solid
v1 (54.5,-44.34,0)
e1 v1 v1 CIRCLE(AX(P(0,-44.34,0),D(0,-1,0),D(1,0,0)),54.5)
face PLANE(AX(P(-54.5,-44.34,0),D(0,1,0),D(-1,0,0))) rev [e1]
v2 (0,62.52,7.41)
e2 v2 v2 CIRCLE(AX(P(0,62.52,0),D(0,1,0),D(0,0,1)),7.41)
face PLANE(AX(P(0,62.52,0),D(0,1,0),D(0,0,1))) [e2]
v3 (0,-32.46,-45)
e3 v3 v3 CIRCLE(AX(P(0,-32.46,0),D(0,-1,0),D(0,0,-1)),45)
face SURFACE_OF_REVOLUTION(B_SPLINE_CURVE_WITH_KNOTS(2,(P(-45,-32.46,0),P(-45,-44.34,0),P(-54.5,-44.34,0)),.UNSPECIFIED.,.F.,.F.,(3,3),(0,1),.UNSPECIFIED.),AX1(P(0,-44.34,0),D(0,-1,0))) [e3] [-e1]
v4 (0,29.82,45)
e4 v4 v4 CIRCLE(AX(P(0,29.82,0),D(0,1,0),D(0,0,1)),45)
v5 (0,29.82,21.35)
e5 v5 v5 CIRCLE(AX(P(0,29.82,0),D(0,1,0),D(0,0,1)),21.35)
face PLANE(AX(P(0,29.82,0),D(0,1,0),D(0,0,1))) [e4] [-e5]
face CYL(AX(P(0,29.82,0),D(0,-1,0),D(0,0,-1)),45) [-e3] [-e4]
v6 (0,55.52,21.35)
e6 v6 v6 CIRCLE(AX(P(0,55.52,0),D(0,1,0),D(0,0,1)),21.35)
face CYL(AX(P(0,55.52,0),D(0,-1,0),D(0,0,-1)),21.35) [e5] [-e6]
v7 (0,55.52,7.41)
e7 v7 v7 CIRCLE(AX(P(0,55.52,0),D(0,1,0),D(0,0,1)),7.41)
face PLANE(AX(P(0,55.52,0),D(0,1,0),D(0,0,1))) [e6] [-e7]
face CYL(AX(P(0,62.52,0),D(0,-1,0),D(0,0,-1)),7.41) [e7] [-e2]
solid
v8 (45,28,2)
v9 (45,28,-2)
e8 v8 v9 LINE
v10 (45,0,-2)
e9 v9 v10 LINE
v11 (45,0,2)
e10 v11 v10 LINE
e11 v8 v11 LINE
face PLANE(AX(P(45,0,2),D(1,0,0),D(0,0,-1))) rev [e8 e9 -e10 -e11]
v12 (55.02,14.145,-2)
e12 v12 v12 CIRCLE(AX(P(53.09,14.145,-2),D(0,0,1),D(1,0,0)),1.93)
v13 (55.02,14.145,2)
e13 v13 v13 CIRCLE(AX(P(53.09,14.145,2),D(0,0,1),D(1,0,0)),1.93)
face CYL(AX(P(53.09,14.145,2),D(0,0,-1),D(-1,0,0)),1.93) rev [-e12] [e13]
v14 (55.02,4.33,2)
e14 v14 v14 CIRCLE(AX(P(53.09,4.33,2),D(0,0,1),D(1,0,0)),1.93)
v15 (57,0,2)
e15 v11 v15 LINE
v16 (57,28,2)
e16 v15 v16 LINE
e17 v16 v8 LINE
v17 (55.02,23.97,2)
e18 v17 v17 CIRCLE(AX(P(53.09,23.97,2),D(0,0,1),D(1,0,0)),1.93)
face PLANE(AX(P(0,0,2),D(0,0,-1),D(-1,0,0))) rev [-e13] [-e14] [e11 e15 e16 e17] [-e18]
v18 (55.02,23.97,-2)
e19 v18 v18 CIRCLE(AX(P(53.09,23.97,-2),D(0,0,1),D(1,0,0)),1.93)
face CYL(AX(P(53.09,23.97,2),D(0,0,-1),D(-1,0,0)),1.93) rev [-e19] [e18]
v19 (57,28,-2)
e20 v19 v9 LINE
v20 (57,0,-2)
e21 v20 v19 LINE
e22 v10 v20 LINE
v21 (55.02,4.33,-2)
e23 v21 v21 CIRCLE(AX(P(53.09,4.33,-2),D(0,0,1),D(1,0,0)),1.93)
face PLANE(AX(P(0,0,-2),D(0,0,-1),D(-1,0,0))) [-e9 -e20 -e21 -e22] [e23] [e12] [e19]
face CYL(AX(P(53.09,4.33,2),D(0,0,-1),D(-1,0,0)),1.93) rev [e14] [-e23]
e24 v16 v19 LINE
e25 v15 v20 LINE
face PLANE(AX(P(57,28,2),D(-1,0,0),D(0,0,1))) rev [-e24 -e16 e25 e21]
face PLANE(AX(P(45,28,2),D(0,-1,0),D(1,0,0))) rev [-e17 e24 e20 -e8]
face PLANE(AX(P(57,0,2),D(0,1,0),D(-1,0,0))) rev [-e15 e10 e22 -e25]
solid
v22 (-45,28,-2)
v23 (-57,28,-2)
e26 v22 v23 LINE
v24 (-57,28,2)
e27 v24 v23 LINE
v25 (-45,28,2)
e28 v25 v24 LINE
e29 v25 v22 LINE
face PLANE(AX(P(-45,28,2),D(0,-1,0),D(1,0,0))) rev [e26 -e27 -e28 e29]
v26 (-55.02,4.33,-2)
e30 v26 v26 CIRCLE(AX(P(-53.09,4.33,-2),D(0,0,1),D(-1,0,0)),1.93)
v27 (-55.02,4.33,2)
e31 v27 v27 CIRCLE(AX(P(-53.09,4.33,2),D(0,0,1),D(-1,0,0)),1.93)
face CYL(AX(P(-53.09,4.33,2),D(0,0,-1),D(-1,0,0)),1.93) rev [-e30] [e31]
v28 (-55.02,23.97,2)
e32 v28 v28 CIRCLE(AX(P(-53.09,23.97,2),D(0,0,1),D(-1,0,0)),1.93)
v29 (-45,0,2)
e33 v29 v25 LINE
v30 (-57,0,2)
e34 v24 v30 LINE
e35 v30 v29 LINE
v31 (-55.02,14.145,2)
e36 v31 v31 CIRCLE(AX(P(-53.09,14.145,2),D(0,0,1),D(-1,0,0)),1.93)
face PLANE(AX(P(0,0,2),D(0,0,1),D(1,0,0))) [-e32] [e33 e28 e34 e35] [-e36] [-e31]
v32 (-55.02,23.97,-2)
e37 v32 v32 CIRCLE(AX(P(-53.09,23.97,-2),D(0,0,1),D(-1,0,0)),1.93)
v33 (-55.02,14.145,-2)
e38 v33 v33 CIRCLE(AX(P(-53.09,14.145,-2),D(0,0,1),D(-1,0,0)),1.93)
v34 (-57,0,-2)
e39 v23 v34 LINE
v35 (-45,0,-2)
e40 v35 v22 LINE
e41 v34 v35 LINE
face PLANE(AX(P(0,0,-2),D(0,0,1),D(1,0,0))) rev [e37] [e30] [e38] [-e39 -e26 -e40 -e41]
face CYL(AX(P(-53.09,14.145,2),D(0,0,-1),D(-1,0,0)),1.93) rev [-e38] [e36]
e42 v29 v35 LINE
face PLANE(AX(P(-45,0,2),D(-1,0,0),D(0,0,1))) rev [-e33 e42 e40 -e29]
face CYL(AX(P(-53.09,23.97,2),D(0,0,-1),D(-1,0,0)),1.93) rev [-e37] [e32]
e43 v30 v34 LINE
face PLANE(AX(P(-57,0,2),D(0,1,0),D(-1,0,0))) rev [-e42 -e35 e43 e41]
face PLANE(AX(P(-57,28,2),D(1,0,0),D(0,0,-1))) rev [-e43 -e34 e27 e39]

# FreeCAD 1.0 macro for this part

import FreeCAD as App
import Part
import Sketcher

V = App.Vector
Q = App.Units.Quantity

doc = App.newDocument("Part")
body = doc.addObject("PartDesign::Body", "Body")

# Sketch on XZ plane
sketch1 = body.newObject("Sketcher::SketchObject", "Sketch")
sketch1.AttachmentSupport = (doc.getObject("XZ_Plane"), [""])
sketch1.MapMode = "FlatFace"
sketch1.addGeometry(Part.Circle(V(0, 0, 0), V(0, 0, 1), 45), False)
sketch1.addConstraint([
    Sketcher.Constraint("Coincident", 0, 3, -1, 1),
    Sketcher.Constraint("Diameter", 0, Q("90 mm")),
])
pad1 = body.newObject("PartDesign::Pad", "Pad")
pad1.Profile = sketch1
pad1.Length = 29.82
pad1.Reversed = True

# Sketch on XZ plane
sketch2 = body.newObject("Sketcher::SketchObject", "Sketch001")
sketch2.AttachmentSupport = (doc.getObject("XZ_Plane"), [""])
sketch2.MapMode = "FlatFace"
sketch2.AttachmentOffset = App.Placement(V(0, 0, -29.82), App.Rotation())
sketch2.addGeometry(Part.Circle(V(0, 0, 0), V(0, 0, 1), 21), False)
sketch2.addConstraint([
    Sketcher.Constraint("Coincident", 0, 3, -1, 1),
    Sketcher.Constraint("Diameter", 0, Q("42.7 mm")),
])
pad2 = body.newObject("PartDesign::Pad", "Pad001")
pad2.Profile = sketch2
pad2.Length = 25.7
pad2.Reversed = True

# Sketch on XZ plane
sketch3 = body.newObject("Sketcher::SketchObject", "Sketch002")
sketch3.AttachmentSupport = (doc.getObject("XZ_Plane"), [""])
sketch3.MapMode = "FlatFace"
sketch3.AttachmentOffset = App.Placement(V(0, 0, -55.52), App.Rotation())
sketch3.addGeometry(Part.Circle(V(0, 0, 0), V(0, 0, 1), 7), False)
sketch3.addConstraint([
    Sketcher.Constraint("Coincident", 0, 3, -1, 1),
    Sketcher.Constraint("Diameter", 0, Q("14.82 mm")),
])
pad3 = body.newObject("PartDesign::Pad", "Pad002")
pad3.Profile = sketch3
pad3.Length = 7
pad3.Reversed = True

# Sketch on XZ plane
sketch4 = body.newObject("Sketcher::SketchObject", "Sketch003")
sketch4.AttachmentSupport = (doc.getObject("XZ_Plane"), [""])
sketch4.MapMode = "FlatFace"
sketch4.addGeometry(Part.Circle(V(0, 0, 0), V(0, 0, 1), 45), False)
sketch4.addConstraint([
    Sketcher.Constraint("Coincident", 0, 3, -1, 1),
    Sketcher.Constraint("Diameter", 0, Q("90 mm")),
])
pad4 = body.newObject("PartDesign::Pad", "Pad003")
pad4.Profile = sketch4
pad4.Length = 32.46

# Sketch on XY plane
sketch5 = body.newObject("Sketcher::SketchObject", "Sketch004")
sketch5.AttachmentSupport = (doc.getObject("XY_Plane"), [""])
sketch5.MapMode = "FlatFace"
sketch5.addGeometry([
    Part.LineSegment(V(-54.5, -44.34, 0), V(0, -44.34, 0)),
    Part.LineSegment(V(0, -44.34, 0), V(0, -32.46, 0)),
    Part.LineSegment(V(0, -32.46, 0), V(-45, -32.46, 0)),
    Part.BSplineCurve([V(-45, -32.46, 0), V(-45, -44.34, 0), V(-54.5, -44.34, 0)], [3, 3], [0, 1], False, 2, [1, 1, 1], False),
], False)
sketch5.addConstraint([
    Sketcher.Constraint("Block", 3),
    Sketcher.Constraint("Coincident", 0, 2, 1, 1),
    Sketcher.Constraint("Coincident", 1, 2, 2, 1),
    Sketcher.Constraint("Coincident", 2, 2, 3, 1),
    Sketcher.Constraint("Coincident", 3, 2, 0, 1),
    Sketcher.Constraint("Horizontal", 0),
    Sketcher.Constraint("Vertical", 1),
    Sketcher.Constraint("Horizontal", 2),
    Sketcher.Constraint("PointOnObject", 0, 2, -2),
])
revolution = body.newObject("PartDesign::Revolution", "Revolution")
revolution.Profile = sketch5
revolution.ReferenceAxis = (sketch5, ["V_Axis"])
revolution.Angle = 360
body2 = doc.addObject("PartDesign::Body", "Body001")

# Sketch on XY plane
sketch6 = body2.newObject("Sketcher::SketchObject", "Sketch005")
sketch6.AttachmentSupport = (doc.getObject("XY_Plane001"), [""])
sketch6.MapMode = "FlatFace"
sketch6.addGeometry([
    Part.LineSegment(V(45, 28, 0), V(45, 0, 0)),  # 0
    Part.LineSegment(V(45, 0, 0), V(57, 0, 0)),  # 1
    Part.LineSegment(V(57, 0, 0), V(57, 28, 0)),  # 2
    Part.LineSegment(V(57, 28, 0), V(45, 28, 0)),  # 3
    Part.Circle(V(53.1, 4.3, 0), V(0, 0, 1), 1.9),  # 4
    Part.Circle(V(53.1, 14.1, 0), V(0, 0, 1), 1.9),  # 5
    Part.Circle(V(53.1, 24, 0), V(0, 0, 1), 1.9),  # 6
], False)
sketch6.addConstraint([
    Sketcher.Constraint("Coincident", 0, 2, 1, 1),
    Sketcher.Constraint("Coincident", 1, 2, 2, 1),
    Sketcher.Constraint("Coincident", 2, 2, 3, 1),
    Sketcher.Constraint("Coincident", 3, 2, 0, 1),
    Sketcher.Constraint("Vertical", 0),
    Sketcher.Constraint("Horizontal", 1),
    Sketcher.Constraint("Vertical", 2),
    Sketcher.Constraint("Horizontal", 3),
    Sketcher.Constraint("Equal", 4, 5),
    Sketcher.Constraint("Equal", 5, 6),
    Sketcher.Constraint("PointOnObject", 0, 2, -1),
    Sketcher.Constraint("Vertical", 4, 3, 5, 3),
    Sketcher.Constraint("Vertical", 5, 3, 6, 3),
    Sketcher.Constraint("Diameter", 4, Q("3.86 mm")),
    Sketcher.Constraint("DistanceX", 1, 1, 1, 2, Q("12 mm")),
    Sketcher.Constraint("DistanceY", 0, 2, 0, 1, Q("28 mm")),
    Sketcher.Constraint("DistanceX", -1, 1, 0, 2, Q("45 mm")),
    Sketcher.Constraint("DistanceX", -1, 1, 4, 3, Q("53.09 mm")),
    Sketcher.Constraint("DistanceY", -1, 1, 4, 3, Q("4.33 mm")),
    Sketcher.Constraint("DistanceY", -1, 1, 6, 3, Q("23.97 mm")),
    Sketcher.Constraint("DistanceY", -1, 1, 5, 3, Q("14.145 mm")),
])
pad5 = body2.newObject("PartDesign::Pad", "Pad004")
pad5.Profile = sketch6
pad5.Length = 4
pad5.Midplane = True
body3 = doc.addObject("PartDesign::Body", "Body002")

# Sketch on XY plane
sketch7 = body3.newObject("Sketcher::SketchObject", "Sketch006")
sketch7.AttachmentSupport = (doc.getObject("XY_Plane002"), [""])
sketch7.MapMode = "FlatFace"
sketch7.addGeometry([
    Part.LineSegment(V(-57, 28, 0), V(-57, 0, 0)),  # 0
    Part.LineSegment(V(-57, 0, 0), V(-45, 0, 0)),  # 1
    Part.LineSegment(V(-45, 0, 0), V(-45, 28, 0)),  # 2
    Part.LineSegment(V(-45, 28, 0), V(-57, 28, 0)),  # 3
    Part.Circle(V(-53.1, 4.3, 0), V(0, 0, 1), 1.9),  # 4
    Part.Circle(V(-53.1, 14.1, 0), V(0, 0, 1), 1.9),  # 5
    Part.Circle(V(-53.1, 24, 0), V(0, 0, 1), 1.9),  # 6
], False)
sketch7.addConstraint([
    Sketcher.Constraint("Coincident", 0, 2, 1, 1),
    Sketcher.Constraint("Coincident", 1, 2, 2, 1),
    Sketcher.Constraint("Coincident", 2, 2, 3, 1),
    Sketcher.Constraint("Coincident", 3, 2, 0, 1),
    Sketcher.Constraint("Vertical", 0),
    Sketcher.Constraint("Horizontal", 1),
    Sketcher.Constraint("Vertical", 2),
    Sketcher.Constraint("Horizontal", 3),
    Sketcher.Constraint("Equal", 4, 5),
    Sketcher.Constraint("Equal", 5, 6),
    Sketcher.Constraint("PointOnObject", 0, 2, -1),
    Sketcher.Constraint("Vertical", 4, 3, 5, 3),
    Sketcher.Constraint("Vertical", 5, 3, 6, 3),
    Sketcher.Constraint("Diameter", 4, Q("3.86 mm")),
    Sketcher.Constraint("DistanceX", 1, 1, 1, 2, Q("12 mm")),
    Sketcher.Constraint("DistanceY", 0, 2, 0, 1, Q("28 mm")),
    Sketcher.Constraint("DistanceX", 0, 2, -1, 1, Q("57 mm")),
    Sketcher.Constraint("DistanceX", 4, 3, -1, 1, Q("53.09 mm")),
    Sketcher.Constraint("DistanceY", -1, 1, 4, 3, Q("4.33 mm")),
    Sketcher.Constraint("DistanceY", -1, 1, 6, 3, Q("23.97 mm")),
    Sketcher.Constraint("DistanceY", -1, 1, 5, 3, Q("14.145 mm")),
])
pad6 = body3.newObject("PartDesign::Pad", "Pad005")
pad6.Profile = sketch7
pad6.Length = 4
pad6.Midplane = True

doc.recompute()
